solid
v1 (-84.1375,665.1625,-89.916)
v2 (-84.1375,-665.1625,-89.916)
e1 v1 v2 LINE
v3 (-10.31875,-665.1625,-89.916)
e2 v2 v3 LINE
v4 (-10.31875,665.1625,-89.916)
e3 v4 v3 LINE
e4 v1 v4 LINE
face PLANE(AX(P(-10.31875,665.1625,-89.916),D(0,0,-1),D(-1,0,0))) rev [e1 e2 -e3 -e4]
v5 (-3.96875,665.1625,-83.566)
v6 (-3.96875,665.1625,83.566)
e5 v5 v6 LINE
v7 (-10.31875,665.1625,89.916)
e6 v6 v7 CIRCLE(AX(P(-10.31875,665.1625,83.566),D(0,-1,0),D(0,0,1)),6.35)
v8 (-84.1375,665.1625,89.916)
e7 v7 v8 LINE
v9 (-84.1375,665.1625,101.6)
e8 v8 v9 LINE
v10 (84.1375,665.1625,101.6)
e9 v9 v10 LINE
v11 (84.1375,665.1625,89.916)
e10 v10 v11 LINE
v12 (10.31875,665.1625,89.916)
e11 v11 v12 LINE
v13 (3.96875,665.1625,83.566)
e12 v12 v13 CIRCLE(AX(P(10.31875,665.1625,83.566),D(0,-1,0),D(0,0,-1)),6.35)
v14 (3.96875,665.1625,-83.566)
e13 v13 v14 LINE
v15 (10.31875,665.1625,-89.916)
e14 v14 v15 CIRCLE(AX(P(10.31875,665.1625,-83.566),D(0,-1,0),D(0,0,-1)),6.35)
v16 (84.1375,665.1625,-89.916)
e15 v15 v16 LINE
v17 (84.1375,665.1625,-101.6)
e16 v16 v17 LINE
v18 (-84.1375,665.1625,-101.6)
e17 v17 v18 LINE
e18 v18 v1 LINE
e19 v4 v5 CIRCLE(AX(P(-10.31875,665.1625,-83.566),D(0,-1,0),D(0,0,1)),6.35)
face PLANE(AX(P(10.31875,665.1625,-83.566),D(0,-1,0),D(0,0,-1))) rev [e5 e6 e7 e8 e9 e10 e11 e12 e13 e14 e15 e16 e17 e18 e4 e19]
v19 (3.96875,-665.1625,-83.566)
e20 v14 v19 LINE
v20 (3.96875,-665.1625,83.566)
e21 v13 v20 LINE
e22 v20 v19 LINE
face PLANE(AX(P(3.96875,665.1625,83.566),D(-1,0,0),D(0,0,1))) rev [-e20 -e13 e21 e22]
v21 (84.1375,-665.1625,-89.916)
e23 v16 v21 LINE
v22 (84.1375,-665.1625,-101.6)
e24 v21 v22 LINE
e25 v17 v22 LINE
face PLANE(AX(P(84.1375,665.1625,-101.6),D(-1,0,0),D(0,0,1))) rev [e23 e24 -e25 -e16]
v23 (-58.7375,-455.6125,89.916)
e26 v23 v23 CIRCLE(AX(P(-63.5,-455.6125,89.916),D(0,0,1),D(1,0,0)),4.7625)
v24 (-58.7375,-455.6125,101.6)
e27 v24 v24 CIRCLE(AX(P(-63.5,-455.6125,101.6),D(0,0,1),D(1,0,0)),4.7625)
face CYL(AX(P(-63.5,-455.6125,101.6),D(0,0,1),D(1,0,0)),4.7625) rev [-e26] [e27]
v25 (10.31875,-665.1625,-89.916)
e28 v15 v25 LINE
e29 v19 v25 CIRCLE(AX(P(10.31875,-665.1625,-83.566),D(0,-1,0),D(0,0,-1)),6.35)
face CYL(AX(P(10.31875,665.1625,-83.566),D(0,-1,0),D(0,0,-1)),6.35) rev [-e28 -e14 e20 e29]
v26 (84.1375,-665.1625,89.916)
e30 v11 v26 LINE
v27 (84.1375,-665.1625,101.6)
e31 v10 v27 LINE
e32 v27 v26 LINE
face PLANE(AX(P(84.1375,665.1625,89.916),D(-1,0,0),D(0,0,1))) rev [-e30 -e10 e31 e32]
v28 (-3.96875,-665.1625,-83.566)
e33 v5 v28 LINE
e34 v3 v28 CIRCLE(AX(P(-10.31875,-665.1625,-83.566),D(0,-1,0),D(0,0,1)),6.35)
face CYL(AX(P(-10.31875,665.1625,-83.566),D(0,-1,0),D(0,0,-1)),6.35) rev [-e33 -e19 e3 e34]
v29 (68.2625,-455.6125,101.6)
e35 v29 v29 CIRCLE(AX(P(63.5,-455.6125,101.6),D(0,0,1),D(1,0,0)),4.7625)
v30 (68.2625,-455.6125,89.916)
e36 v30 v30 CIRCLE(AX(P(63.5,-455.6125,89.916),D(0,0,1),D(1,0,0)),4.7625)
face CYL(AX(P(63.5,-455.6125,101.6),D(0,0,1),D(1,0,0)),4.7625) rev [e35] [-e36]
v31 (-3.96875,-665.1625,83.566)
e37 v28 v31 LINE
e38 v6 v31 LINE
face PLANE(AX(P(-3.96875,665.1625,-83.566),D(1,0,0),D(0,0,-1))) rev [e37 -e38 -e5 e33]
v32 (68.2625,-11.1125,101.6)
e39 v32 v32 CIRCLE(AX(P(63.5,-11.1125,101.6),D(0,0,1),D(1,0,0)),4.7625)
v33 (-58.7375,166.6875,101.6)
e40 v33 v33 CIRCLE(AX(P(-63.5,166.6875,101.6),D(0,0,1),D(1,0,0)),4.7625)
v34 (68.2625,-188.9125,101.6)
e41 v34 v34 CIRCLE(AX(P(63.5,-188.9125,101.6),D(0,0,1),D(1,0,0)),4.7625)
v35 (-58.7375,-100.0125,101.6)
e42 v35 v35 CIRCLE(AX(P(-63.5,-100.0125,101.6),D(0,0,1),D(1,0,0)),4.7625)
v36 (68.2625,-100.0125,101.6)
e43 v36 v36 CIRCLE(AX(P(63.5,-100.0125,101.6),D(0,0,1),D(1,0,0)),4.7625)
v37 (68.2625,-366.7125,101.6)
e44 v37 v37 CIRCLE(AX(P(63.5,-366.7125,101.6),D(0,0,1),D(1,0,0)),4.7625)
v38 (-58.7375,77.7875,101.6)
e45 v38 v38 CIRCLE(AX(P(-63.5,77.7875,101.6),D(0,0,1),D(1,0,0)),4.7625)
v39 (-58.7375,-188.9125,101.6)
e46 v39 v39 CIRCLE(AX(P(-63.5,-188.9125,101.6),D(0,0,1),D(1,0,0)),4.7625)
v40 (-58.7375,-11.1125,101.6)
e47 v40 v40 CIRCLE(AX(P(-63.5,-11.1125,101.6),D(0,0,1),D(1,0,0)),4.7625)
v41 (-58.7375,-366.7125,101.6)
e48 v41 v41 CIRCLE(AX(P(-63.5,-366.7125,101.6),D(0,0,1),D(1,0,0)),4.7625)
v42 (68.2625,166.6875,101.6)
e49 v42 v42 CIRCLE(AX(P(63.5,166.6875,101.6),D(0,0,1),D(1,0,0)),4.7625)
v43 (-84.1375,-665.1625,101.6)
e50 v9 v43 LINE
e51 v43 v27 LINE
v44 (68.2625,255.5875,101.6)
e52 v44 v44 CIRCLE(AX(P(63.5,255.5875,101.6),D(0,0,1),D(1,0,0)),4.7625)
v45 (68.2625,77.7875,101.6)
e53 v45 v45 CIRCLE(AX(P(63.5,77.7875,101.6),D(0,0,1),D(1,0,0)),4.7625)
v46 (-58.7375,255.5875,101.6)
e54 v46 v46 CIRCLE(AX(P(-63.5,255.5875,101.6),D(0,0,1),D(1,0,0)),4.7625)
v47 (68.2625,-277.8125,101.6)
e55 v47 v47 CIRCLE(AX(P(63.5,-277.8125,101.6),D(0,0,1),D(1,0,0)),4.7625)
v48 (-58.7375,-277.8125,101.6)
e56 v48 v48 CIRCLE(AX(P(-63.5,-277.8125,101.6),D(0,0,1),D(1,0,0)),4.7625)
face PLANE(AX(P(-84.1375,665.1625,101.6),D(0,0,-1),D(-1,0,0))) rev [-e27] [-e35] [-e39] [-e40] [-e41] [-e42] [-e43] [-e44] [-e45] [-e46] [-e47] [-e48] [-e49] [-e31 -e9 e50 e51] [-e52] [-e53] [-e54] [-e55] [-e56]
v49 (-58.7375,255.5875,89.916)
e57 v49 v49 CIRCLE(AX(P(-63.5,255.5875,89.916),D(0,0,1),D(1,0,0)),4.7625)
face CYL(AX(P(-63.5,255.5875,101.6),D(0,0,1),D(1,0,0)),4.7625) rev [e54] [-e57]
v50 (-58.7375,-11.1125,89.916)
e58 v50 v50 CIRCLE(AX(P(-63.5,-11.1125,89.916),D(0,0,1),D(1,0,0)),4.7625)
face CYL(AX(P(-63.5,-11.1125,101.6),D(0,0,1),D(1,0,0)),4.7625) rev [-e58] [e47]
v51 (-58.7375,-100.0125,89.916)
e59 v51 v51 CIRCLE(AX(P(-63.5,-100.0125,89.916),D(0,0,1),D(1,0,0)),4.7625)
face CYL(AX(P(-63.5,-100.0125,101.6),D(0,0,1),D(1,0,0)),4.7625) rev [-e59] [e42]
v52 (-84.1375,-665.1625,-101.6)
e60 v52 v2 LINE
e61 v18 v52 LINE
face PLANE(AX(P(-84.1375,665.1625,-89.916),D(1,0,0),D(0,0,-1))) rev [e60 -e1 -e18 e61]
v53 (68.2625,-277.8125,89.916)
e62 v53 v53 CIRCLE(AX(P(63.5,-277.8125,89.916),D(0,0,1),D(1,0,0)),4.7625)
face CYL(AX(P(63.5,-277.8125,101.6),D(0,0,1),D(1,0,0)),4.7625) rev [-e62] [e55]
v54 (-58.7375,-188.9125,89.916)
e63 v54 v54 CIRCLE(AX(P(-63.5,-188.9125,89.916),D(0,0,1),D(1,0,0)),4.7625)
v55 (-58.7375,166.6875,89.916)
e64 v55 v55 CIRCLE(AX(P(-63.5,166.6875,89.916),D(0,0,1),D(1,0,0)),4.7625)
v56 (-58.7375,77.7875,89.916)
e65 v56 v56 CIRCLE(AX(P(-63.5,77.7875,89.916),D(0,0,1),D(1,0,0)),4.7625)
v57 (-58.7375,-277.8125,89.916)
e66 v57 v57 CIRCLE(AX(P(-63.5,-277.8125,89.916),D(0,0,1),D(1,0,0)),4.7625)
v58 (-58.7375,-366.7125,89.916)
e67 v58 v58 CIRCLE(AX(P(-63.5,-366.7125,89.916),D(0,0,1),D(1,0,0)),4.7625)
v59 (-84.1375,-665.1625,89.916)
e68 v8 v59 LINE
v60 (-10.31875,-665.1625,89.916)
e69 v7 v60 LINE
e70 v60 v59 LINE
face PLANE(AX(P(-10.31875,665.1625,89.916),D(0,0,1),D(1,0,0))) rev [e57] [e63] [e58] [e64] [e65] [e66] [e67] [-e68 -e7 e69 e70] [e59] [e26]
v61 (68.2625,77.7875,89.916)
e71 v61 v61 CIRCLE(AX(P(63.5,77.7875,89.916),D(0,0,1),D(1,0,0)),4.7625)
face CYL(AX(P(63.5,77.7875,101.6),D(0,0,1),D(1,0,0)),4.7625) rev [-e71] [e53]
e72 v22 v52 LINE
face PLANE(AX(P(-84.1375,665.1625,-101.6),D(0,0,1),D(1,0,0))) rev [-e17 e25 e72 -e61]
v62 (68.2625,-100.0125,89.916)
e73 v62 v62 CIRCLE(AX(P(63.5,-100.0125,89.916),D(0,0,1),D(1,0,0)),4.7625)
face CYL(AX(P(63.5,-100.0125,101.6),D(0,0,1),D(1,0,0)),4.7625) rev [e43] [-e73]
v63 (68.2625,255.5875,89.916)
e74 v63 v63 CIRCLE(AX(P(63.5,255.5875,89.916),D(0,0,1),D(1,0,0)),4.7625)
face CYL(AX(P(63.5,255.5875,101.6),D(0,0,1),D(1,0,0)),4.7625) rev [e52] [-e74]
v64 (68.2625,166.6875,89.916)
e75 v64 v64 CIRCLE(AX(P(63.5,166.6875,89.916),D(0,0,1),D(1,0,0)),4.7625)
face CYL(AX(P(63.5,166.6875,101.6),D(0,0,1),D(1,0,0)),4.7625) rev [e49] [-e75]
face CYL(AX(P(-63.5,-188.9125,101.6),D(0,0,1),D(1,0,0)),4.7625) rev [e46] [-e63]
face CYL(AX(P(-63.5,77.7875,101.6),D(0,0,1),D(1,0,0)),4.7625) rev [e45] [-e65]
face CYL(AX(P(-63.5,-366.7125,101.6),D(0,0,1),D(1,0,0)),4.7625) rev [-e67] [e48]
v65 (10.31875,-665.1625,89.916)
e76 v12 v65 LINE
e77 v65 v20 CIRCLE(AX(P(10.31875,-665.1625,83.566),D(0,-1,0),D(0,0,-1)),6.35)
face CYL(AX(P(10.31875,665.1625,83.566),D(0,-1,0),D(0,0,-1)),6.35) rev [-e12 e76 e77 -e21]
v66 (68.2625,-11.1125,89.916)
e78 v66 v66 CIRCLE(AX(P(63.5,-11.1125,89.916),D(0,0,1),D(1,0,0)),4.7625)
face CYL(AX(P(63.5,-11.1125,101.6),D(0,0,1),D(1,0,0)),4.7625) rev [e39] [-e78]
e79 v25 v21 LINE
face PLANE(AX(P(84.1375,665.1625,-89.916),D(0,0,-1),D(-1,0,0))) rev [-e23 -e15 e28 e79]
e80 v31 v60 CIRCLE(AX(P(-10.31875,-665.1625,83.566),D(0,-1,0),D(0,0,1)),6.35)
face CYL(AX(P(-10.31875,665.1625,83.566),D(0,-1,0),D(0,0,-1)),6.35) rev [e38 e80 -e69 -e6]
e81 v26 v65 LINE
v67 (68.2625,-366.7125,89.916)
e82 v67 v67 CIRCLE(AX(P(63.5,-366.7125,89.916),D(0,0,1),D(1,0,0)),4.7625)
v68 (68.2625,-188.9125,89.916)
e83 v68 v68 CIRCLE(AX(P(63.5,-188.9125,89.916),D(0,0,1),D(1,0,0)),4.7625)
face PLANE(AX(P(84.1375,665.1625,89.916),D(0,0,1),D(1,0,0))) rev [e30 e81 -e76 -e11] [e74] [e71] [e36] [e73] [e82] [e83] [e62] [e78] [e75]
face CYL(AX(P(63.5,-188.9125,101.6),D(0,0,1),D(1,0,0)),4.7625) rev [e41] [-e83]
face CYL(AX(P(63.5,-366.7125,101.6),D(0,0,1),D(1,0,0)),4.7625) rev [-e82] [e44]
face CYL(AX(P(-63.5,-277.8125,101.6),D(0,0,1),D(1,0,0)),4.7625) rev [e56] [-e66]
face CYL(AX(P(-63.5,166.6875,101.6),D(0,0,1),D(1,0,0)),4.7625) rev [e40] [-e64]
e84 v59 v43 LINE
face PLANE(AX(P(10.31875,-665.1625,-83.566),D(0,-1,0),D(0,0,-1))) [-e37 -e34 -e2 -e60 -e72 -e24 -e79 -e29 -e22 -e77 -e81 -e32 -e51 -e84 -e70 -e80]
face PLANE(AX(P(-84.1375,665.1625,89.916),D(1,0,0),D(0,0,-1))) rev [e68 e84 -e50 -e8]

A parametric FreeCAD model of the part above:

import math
import FreeCAD as App
import Part
import Sketcher

V = App.Vector
Q = App.Units.Quantity

doc = App.newDocument("Part")
body = doc.addObject("PartDesign::Body", "Body")

# Sketch on XZ plane
sketch1 = body.newObject("Sketcher::SketchObject", "Sketch")
sketch1.AttachmentSupport = (doc.getObject("XZ_Plane"), [""])
sketch1.MapMode = "FlatFace"
sketch1.addGeometry(Part.LineSegment(V(84, -102, 0), V(-84, -102, 0)), False)
sketch1.addGeometry(Part.LineSegment(V(-84, -102, 0), V(-84, -90, 0)), False)
sketch1.addGeometry(Part.LineSegment(V(-84, -90, 0), V(-10, -90, 0)), False)
sketch1.addGeometry(Part.ArcOfCircle(Part.Circle(V(-10, -84, 0), V(0, 0, 1), 6), math.radians(-90), math.radians(0)), False)
sketch1.addGeometry(Part.LineSegment(V(-4, -84, 0), V(-4, 84, 0)), False)
sketch1.addGeometry(Part.ArcOfCircle(Part.Circle(V(-10, 84, 0), V(0, 0, 1), 6), math.radians(0), math.radians(90)), False)
sketch1.addGeometry(Part.LineSegment(V(-10, 90, 0), V(-84, 90, 0)), False)
sketch1.addGeometry(Part.LineSegment(V(-84, 90, 0), V(-84, 102, 0)), False)
sketch1.addGeometry(Part.LineSegment(V(-84, 102, 0), V(84, 102, 0)), False)
sketch1.addGeometry(Part.LineSegment(V(84, 102, 0), V(84, 90, 0)), False)
sketch1.addGeometry(Part.LineSegment(V(84, 90, 0), V(10, 90, 0)), False)
sketch1.addGeometry(Part.ArcOfCircle(Part.Circle(V(10, 84, 0), V(0, 0, 1), 6), math.radians(90), math.radians(180)), False)
sketch1.addGeometry(Part.LineSegment(V(4, 84, 0), V(4, -84, 0)), False)
sketch1.addGeometry(Part.ArcOfCircle(Part.Circle(V(10, -84, 0), V(0, 0, 1), 6), math.radians(180), math.radians(270)), False)
sketch1.addGeometry(Part.LineSegment(V(10, -90, 0), V(84, -90, 0)), False)
sketch1.addGeometry(Part.LineSegment(V(84, -90, 0), V(84, -102, 0)), False)
sketch1.addConstraint(Sketcher.Constraint("Coincident", 0, 2, 1, 1))
sketch1.addConstraint(Sketcher.Constraint("Coincident", 1, 2, 2, 1))
sketch1.addConstraint(Sketcher.Constraint("Tangent", 2, 2, 3, 1))
sketch1.addConstraint(Sketcher.Constraint("Tangent", 3, 2, 4, 1))
sketch1.addConstraint(Sketcher.Constraint("Tangent", 4, 2, 5, 1))
sketch1.addConstraint(Sketcher.Constraint("Tangent", 5, 2, 6, 1))
sketch1.addConstraint(Sketcher.Constraint("Coincident", 6, 2, 7, 1))
sketch1.addConstraint(Sketcher.Constraint("Coincident", 7, 2, 8, 1))
sketch1.addConstraint(Sketcher.Constraint("Coincident", 8, 2, 9, 1))
sketch1.addConstraint(Sketcher.Constraint("Coincident", 9, 2, 10, 1))
sketch1.addConstraint(Sketcher.Constraint("Tangent", 10, 2, 11, 1))
sketch1.addConstraint(Sketcher.Constraint("Tangent", 11, 2, 12, 1))
sketch1.addConstraint(Sketcher.Constraint("Tangent", 12, 2, 13, 1))
sketch1.addConstraint(Sketcher.Constraint("Tangent", 13, 2, 14, 1))
sketch1.addConstraint(Sketcher.Constraint("Coincident", 14, 2, 15, 1))
sketch1.addConstraint(Sketcher.Constraint("Coincident", 15, 2, 0, 1))
sketch1.addConstraint(Sketcher.Constraint("Horizontal", 0))
sketch1.addConstraint(Sketcher.Constraint("Vertical", 1))
sketch1.addConstraint(Sketcher.Constraint("Horizontal", 2))
sketch1.addConstraint(Sketcher.Constraint("Vertical", 4))
sketch1.addConstraint(Sketcher.Constraint("Horizontal", 6))
sketch1.addConstraint(Sketcher.Constraint("Vertical", 7))
sketch1.addConstraint(Sketcher.Constraint("Horizontal", 8))
sketch1.addConstraint(Sketcher.Constraint("Vertical", 9))
sketch1.addConstraint(Sketcher.Constraint("Horizontal", 10))
sketch1.addConstraint(Sketcher.Constraint("Vertical", 12))
sketch1.addConstraint(Sketcher.Constraint("Horizontal", 14))
sketch1.addConstraint(Sketcher.Constraint("Vertical", 15))
sketch1.addConstraint(Sketcher.Constraint("Equal", 3, 5))
sketch1.addConstraint(Sketcher.Constraint("Equal", 5, 11))
sketch1.addConstraint(Sketcher.Constraint("Equal", 11, 13))
sketch1.addConstraint(Sketcher.Constraint("Symmetric", 3, 3, 11, 3, -1, 1))
sketch1.addConstraint(Sketcher.Constraint("Symmetric", 0, 2, 8, 2, -1, 1))
sketch1.addConstraint(Sketcher.Constraint("Symmetric", 6, 2, 14, 2, -1, 1))
sketch1.addConstraint(Sketcher.Constraint("Symmetric", 6, 2, 9, 2, -2))
sketch1.addConstraint(Sketcher.Constraint("Radius", 3, Q("0.25 in")))
sketch1.addConstraint(Sketcher.Constraint("DistanceY", 0, 2, -1, 1, Q("4 in")))
sketch1.addConstraint(Sketcher.Constraint("DistanceY", 1, 1, 1, 2, Q("0.46 in")))
sketch1.addConstraint(Sketcher.Constraint("DistanceX", 0, 2, 0, 1, Q("6.625 in")))
sketch1.addConstraint(Sketcher.Constraint("DistanceX", 2, 1, 2, 2, Q("2.90625 in")))
pad1 = body.newObject("PartDesign::Pad", "Pad")
pad1.Profile = sketch1
pad1.Length = Q("52.375 in")
pad1.Midplane = True

# Sketch on XY plane
sketch2 = body.newObject("Sketcher::SketchObject", "Sketch001")
sketch2.AttachmentSupport = (doc.getObject("XY_Plane"), [""])
sketch2.MapMode = "FlatFace"
sketch2.AttachmentOffset = App.Placement(V(0, 0, 4 * 25.4), App.Rotation())
sketch2.addGeometry(Part.Circle(V(-63.5, 255.6, 0), V(0, 0, 1), 4.8), False)
sketch2.addGeometry(Part.Circle(V(63.5, 255.6, 0), V(0, 0, 1), 4.8), False)
sketch2.addGeometry(Part.Circle(V(63.5, -455.6, 0), V(0, 0, 1), 4.8), False)
sketch2.addGeometry(Part.Circle(V(63.5, -366.7, 0), V(0, 0, 1), 4.8), False)
sketch2.addGeometry(Part.Circle(V(63.5, -277.8, 0), V(0, 0, 1), 4.8), False)
sketch2.addGeometry(Part.Circle(V(63.5, -188.9, 0), V(0, 0, 1), 4.8), False)
sketch2.addGeometry(Part.Circle(V(63.5, -100, 0), V(0, 0, 1), 4.8), False)
sketch2.addGeometry(Part.Circle(V(63.5, -11.1, 0), V(0, 0, 1), 4.8), False)
sketch2.addGeometry(Part.Circle(V(63.5, 77.8, 0), V(0, 0, 1), 4.8), False)
sketch2.addGeometry(Part.Circle(V(-63.5, -455.6, 0), V(0, 0, 1), 4.8), False)
sketch2.addGeometry(Part.Circle(V(-63.5, -366.7, 0), V(0, 0, 1), 4.8), False)
sketch2.addGeometry(Part.Circle(V(-63.5, -277.8, 0), V(0, 0, 1), 4.8), False)
sketch2.addGeometry(Part.Circle(V(-63.5, -188.9, 0), V(0, 0, 1), 4.8), False)
sketch2.addGeometry(Part.Circle(V(-63.5, -100, 0), V(0, 0, 1), 4.8), False)
sketch2.addGeometry(Part.Circle(V(-63.5, -11.1, 0), V(0, 0, 1), 4.8), False)
sketch2.addGeometry(Part.Circle(V(-63.5, 77.8, 0), V(0, 0, 1), 4.8), False)
sketch2.addGeometry(Part.Circle(V(-63.5, 166.7, 0), V(0, 0, 1), 4.8), False)
sketch2.addGeometry(Part.Circle(V(63.5, 166.7, 0), V(0, 0, 1), 4.8), False)
sketch2.addConstraint(Sketcher.Constraint("Equal", 0, 1))
sketch2.addConstraint(Sketcher.Constraint("Equal", 1, 2))
sketch2.addConstraint(Sketcher.Constraint("Equal", 2, 3))
sketch2.addConstraint(Sketcher.Constraint("Equal", 3, 4))
sketch2.addConstraint(Sketcher.Constraint("Equal", 4, 5))
sketch2.addConstraint(Sketcher.Constraint("Equal", 5, 6))
sketch2.addConstraint(Sketcher.Constraint("Equal", 6, 7))
sketch2.addConstraint(Sketcher.Constraint("Equal", 7, 8))
sketch2.addConstraint(Sketcher.Constraint("Equal", 8, 9))
sketch2.addConstraint(Sketcher.Constraint("Equal", 9, 10))
sketch2.addConstraint(Sketcher.Constraint("Equal", 10, 11))
sketch2.addConstraint(Sketcher.Constraint("Equal", 11, 12))
sketch2.addConstraint(Sketcher.Constraint("Equal", 12, 13))
sketch2.addConstraint(Sketcher.Constraint("Equal", 13, 14))
sketch2.addConstraint(Sketcher.Constraint("Equal", 14, 15))
sketch2.addConstraint(Sketcher.Constraint("Equal", 15, 16))
sketch2.addConstraint(Sketcher.Constraint("Equal", 16, 17))
sketch2.addConstraint(Sketcher.Constraint("Symmetric", 0, 3, 1, 3, -2))
sketch2.addConstraint(Sketcher.Constraint("Symmetric", 2, 3, 9, 3, -2))
sketch2.addConstraint(Sketcher.Constraint("Symmetric", 3, 3, 10, 3, -2))
sketch2.addConstraint(Sketcher.Constraint("Symmetric", 4, 3, 11, 3, -2))
sketch2.addConstraint(Sketcher.Constraint("Symmetric", 5, 3, 12, 3, -2))
sketch2.addConstraint(Sketcher.Constraint("Symmetric", 6, 3, 13, 3, -2))
sketch2.addConstraint(Sketcher.Constraint("Symmetric", 7, 3, 14, 3, -2))
sketch2.addConstraint(Sketcher.Constraint("Symmetric", 8, 3, 15, 3, -2))
sketch2.addConstraint(Sketcher.Constraint("Symmetric", 16, 3, 17, 3, -2))
sketch2.addConstraint(Sketcher.Constraint("Vertical", 1, 3, 2, 3))
sketch2.addConstraint(Sketcher.Constraint("Vertical", 2, 3, 3, 3))
sketch2.addConstraint(Sketcher.Constraint("Vertical", 3, 3, 4, 3))
sketch2.addConstraint(Sketcher.Constraint("Vertical", 4, 3, 5, 3))
sketch2.addConstraint(Sketcher.Constraint("Vertical", 5, 3, 6, 3))
sketch2.addConstraint(Sketcher.Constraint("Vertical", 6, 3, 7, 3))
sketch2.addConstraint(Sketcher.Constraint("Vertical", 7, 3, 8, 3))
sketch2.addConstraint(Sketcher.Constraint("Vertical", 15, 3, 16, 3))
sketch2.addConstraint(Sketcher.Constraint("Diameter", 0, Q("0.375 in")))
sketch2.addConstraint(Sketcher.Constraint("DistanceX", 0, 3, 1, 3, Q("5 in")))
sketch2.addConstraint(Sketcher.Constraint("DistanceY", 2, 3, 1, 3, Q("28 in")))
sketch2.addConstraint(Sketcher.Constraint("DistanceY", 2, 3, 4, 3, Q("7 in")))
sketch2.addConstraint(Sketcher.Constraint("DistanceY", 3, 3, 5, 3, Q("7 in")))
sketch2.addConstraint(Sketcher.Constraint("DistanceY", 4, 3, 6, 3, Q("7 in")))
sketch2.addConstraint(Sketcher.Constraint("DistanceY", 5, 3, 7, 3, Q("7 in")))
sketch2.addConstraint(Sketcher.Constraint("DistanceY", 8, 3, 1, 3, Q("7 in")))
sketch2.addConstraint(Sketcher.Constraint("DistanceY", 14, 3, 16, 3, Q("7 in")))
sketch2.addConstraint(Sketcher.Constraint("DistanceY", 2, 3, 3, 3, Q("3.5 in")))
sketch2.addConstraint(Sketcher.Constraint("DistanceY", -1, 1, 0, 3, Q("10.0625 in")))
doc.recompute()
hole = body.newObject("PartDesign::Hole", "Hole")
hole.Profile = sketch2
hole.ThreadType = "None"
hole.Diameter = Q("0.375 in")
hole.DepthType = "Dimension"
hole.Depth = Q("0.46 in")
hole.DrillPoint = "Flat"

doc.recompute()
